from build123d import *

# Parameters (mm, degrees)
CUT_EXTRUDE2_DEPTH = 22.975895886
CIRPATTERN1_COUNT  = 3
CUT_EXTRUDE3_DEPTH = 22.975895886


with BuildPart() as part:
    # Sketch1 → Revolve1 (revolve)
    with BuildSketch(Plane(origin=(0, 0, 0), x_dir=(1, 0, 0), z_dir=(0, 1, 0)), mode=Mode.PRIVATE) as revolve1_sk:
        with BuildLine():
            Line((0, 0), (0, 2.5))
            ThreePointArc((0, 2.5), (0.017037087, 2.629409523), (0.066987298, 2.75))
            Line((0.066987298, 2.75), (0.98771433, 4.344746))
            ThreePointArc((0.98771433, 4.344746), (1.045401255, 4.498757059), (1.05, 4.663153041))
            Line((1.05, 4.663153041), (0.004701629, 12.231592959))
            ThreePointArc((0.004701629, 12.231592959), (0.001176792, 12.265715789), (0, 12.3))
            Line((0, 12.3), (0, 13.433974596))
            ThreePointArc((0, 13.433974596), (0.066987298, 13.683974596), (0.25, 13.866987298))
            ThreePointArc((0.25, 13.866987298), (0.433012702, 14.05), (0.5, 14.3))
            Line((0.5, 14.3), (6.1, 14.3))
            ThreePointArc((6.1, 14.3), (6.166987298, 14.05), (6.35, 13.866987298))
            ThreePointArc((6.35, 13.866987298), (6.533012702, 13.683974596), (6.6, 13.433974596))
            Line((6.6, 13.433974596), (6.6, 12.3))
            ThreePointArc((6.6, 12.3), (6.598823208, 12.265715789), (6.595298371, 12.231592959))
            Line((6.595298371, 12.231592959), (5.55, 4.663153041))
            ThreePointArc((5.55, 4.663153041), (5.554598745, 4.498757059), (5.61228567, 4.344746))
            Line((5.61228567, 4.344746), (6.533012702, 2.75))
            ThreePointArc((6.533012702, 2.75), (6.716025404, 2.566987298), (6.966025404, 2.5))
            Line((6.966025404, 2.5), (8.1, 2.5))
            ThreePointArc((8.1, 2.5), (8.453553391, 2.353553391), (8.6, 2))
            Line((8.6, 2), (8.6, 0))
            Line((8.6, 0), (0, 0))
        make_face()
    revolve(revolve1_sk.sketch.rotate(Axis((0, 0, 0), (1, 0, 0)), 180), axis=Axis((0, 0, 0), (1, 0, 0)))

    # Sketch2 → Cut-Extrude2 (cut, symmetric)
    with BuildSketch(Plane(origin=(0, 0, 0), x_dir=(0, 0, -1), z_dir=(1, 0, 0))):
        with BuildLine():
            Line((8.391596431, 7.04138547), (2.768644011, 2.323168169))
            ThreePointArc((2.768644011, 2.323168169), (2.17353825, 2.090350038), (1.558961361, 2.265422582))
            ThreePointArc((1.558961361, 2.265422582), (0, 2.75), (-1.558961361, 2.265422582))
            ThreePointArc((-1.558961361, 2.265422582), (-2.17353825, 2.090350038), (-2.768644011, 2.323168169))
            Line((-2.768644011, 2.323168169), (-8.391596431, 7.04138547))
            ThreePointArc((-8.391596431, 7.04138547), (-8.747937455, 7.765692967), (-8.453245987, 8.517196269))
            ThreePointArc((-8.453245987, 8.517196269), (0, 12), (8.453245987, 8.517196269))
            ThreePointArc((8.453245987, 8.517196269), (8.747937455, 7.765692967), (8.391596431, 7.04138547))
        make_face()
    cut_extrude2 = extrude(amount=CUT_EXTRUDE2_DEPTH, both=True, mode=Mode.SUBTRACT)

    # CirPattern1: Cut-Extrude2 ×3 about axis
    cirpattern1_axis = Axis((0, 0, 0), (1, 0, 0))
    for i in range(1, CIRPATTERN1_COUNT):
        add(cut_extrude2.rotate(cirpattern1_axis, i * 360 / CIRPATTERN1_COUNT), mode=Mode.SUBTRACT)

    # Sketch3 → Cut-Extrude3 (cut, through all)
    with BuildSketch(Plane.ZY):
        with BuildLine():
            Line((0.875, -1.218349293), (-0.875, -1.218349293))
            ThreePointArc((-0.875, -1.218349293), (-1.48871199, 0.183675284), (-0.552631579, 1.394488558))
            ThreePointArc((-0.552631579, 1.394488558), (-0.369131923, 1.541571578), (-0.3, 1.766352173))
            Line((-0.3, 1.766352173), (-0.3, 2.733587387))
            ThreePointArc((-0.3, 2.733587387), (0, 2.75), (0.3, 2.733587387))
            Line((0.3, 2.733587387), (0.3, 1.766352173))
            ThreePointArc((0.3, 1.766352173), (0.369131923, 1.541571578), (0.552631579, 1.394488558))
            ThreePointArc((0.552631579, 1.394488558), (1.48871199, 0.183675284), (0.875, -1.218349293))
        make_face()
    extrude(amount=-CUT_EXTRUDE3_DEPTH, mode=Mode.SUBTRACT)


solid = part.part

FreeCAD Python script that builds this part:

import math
import FreeCAD as App
import Part
import Sketcher
Q = App.Units.Quantity

doc = App.newDocument("Part")
body = doc.addObject("PartDesign::Body", "Body")

sketch1 = body.newObject("Sketcher::SketchObject", "Sketch")
sketch1.AttachmentSupport = (doc.getObject("XZ_Plane"), [""])
sketch1.MapMode = "FlatFace"
sketch1.addGeometry([
    Part.LineSegment(App.Vector(0, -2.5, 0), App.Vector(0, 0, 0)),
    Part.LineSegment(App.Vector(0, 0, 0), App.Vector(8.6, 0, 0)),
    Part.LineSegment(App.Vector(8.6, 0, 0), App.Vector(8.6, -2, 0)),
    Part.ArcOfCircle(Part.Circle(App.Vector(8.1, -2, 0), App.Vector(0, 0, 1), 0.5), math.radians(-90), math.radians(0)),
    Part.LineSegment(App.Vector(8.1, -2.5, 0), App.Vector(6.966025, -2.5, 0)),
    Part.ArcOfCircle(Part.Circle(App.Vector(6.966025, -3, 0), App.Vector(0, 0, 1), 0.5), math.radians(90), math.radians(150)),
    Part.LineSegment(App.Vector(6.533013, -2.75, 0), App.Vector(5.612286, -4.344746, 0)),
    Part.ArcOfCircle(Part.Circle(App.Vector(6.045298, -4.594746, 0), App.Vector(0, 0, 1), 0.5), math.radians(150), math.radians(187.863533)),
    Part.LineSegment(App.Vector(5.55, -4.663153, 0), App.Vector(6.595298, -12.231593, 0)),
    Part.ArcOfCircle(Part.Circle(App.Vector(6.1, -12.3, 0), App.Vector(0, 0, 1), 0.5), math.radians(0), math.radians(7.863534)),
    Part.LineSegment(App.Vector(6.6, -12.3, 0), App.Vector(6.6, -13.433975, 0)),
    Part.ArcOfCircle(Part.Circle(App.Vector(6.1, -13.433975, 0), App.Vector(0, 0, 1), 0.5), math.radians(-60), math.radians(0)),
    Part.ArcOfCircle(Part.Circle(App.Vector(6.6, -14.3, 0), App.Vector(0, 0, 1), 0.5), math.radians(120), math.radians(180)),
    Part.LineSegment(App.Vector(6.1, -14.3, 0), App.Vector(0.5, -14.3, 0)),
    Part.ArcOfCircle(Part.Circle(App.Vector(0, -14.3, 0), App.Vector(0, 0, 1), 0.5), math.radians(0), math.radians(60)),
    Part.ArcOfCircle(Part.Circle(App.Vector(0.5, -13.433975, 0), App.Vector(0, 0, 1), 0.5), math.radians(180), math.radians(240)),
    Part.LineSegment(App.Vector(0, -13.433975, 0), App.Vector(0, -12.3, 0)),
    Part.ArcOfCircle(Part.Circle(App.Vector(0.5, -12.3, 0), App.Vector(0, 0, 1), 0.5), math.radians(172.136466), math.radians(180)),
    Part.LineSegment(App.Vector(0.004702, -12.231593, 0), App.Vector(1.05, -4.663153, 0)),
    Part.ArcOfCircle(Part.Circle(App.Vector(0.554702, -4.594746, 0), App.Vector(0, 0, 1), 0.5), math.radians(-7.863533), math.radians(30)),
    Part.LineSegment(App.Vector(0.987714, -4.344746, 0), App.Vector(0.066987, -2.75, 0)),
    Part.ArcOfCircle(Part.Circle(App.Vector(0.5, -2.5, 0), App.Vector(0, 0, 1), 0.5), math.radians(180), math.radians(210)),
], False)
sketch1.addConstraint([
    Sketcher.Constraint("Coincident", 0, 2, 1, 1),
    Sketcher.Constraint("Coincident", 1, 2, 2, 1),
    Sketcher.Constraint("Tangent", 2, 2, 3, 2),
    Sketcher.Constraint("Tangent", 3, 1, 4, 1),
    Sketcher.Constraint("Tangent", 4, 2, 5, 1),
    Sketcher.Constraint("Tangent", 5, 2, 6, 1),
    Sketcher.Constraint("Tangent", 6, 2, 7, 1),
    Sketcher.Constraint("Tangent", 7, 2, 8, 1),
    Sketcher.Constraint("Tangent", 8, 2, 9, 2),
    Sketcher.Constraint("Tangent", 9, 1, 10, 1),
    Sketcher.Constraint("Tangent", 10, 2, 11, 2),
    Sketcher.Constraint("Tangent", 11, 1, 12, 1),
    Sketcher.Constraint("Coincident", 12, 2, 13, 1),
    Sketcher.Constraint("Coincident", 13, 2, 14, 1),
    Sketcher.Constraint("Tangent", 14, 2, 15, 2),
    Sketcher.Constraint("Tangent", 15, 1, 16, 1),
    Sketcher.Constraint("Tangent", 16, 2, 17, 2),
    Sketcher.Constraint("Tangent", 17, 1, 18, 1),
    Sketcher.Constraint("Tangent", 18, 2, 19, 1),
    Sketcher.Constraint("Tangent", 19, 2, 20, 1),
    Sketcher.Constraint("Tangent", 20, 2, 21, 2),
    Sketcher.Constraint("Tangent", 21, 1, 0, 1),
    Sketcher.Constraint("Vertical", 0),
    Sketcher.Constraint("Horizontal", 1),
    Sketcher.Constraint("Vertical", 2),
    Sketcher.Constraint("Horizontal", 4),
    Sketcher.Constraint("Vertical", 10),
    Sketcher.Constraint("Horizontal", 13),
    Sketcher.Constraint("Vertical", 16),
    Sketcher.Constraint("Coincident", 0, 2, -1, 1),
    Sketcher.Constraint("Equal", 3, 5),
    Sketcher.Constraint("Equal", 5, 7),
    Sketcher.Constraint("Equal", 7, 9),
    Sketcher.Constraint("Equal", 9, 11),
    Sketcher.Constraint("Equal", 11, 12),
    Sketcher.Constraint("Equal", 12, 14),
    Sketcher.Constraint("Equal", 14, 15),
    Sketcher.Constraint("Equal", 15, 17),
    Sketcher.Constraint("Equal", 17, 19),
    Sketcher.Constraint("Equal", 19, 21),
    Sketcher.Constraint("PointOnObject", 14, 3, -2),
    Sketcher.Constraint("PointOnObject", 15, 1, -2),
    Sketcher.Constraint("Horizontal", 12, 3, 14, 3),
    Sketcher.Constraint("Horizontal", 11, 3, 15, 3),
    Sketcher.Constraint("Horizontal", 9, 3, 17, 3),
    Sketcher.Constraint("Horizontal", 7, 3, 19, 3),
    Sketcher.Constraint("Horizontal", 21, 3, 3, 1),
    Sketcher.Constraint("Horizontal", 14, 3, 12, 2),
    Sketcher.Constraint("Horizontal", 8, 2, 17, 1),
    Sketcher.Constraint("Horizontal", 6, 2, 19, 2),
    Sketcher.Constraint("Horizontal", 5, 2, 20, 2),
    Sketcher.Constraint("Equal", 4, 10),
    Sketcher.Constraint("Radius", 3, 0.5),
    Sketcher.Constraint("DistanceY", 2, 2, 2, 1, 2.0),
    Sketcher.Constraint("DistanceX", 1, 1, 1, 2, 8.6),
    Sketcher.Constraint("DistanceX", 13, 2, 13, 1, 5.6),
    Sketcher.Constraint("DistanceY", 9, 3, -1, 1, 12.3),
    Sketcher.Constraint("DistanceX", 18, 2, 7, 2, 4.5),
])
revolution = body.newObject("PartDesign::Revolution", "Revolution")
revolution.Profile = sketch1
revolution.ReferenceAxis = (sketch1, ["H_Axis"])
revolution.Angle = 360

sketch2 = body.newObject("Sketcher::SketchObject", "Sketch001")
sketch2.AttachmentSupport = (doc.getObject("YZ_Plane"), [""])
sketch2.MapMode = "FlatFace"
sketch2.addGeometry([
    Part.LineSegment(App.Vector(2.323168, -2.768644, 0), App.Vector(7.041385, -8.391596, 0)),
    Part.ArcOfCircle(Part.Circle(App.Vector(7.80743, -7.748809, 0), App.Vector(0, 0, 1), 1), math.radians(-140), math.radians(-44.784091)),
    Part.ArcOfCircle(Part.Circle(App.Vector(0, 0, 0), App.Vector(0, 0, 1), 12), math.radians(-44.784091), math.radians(44.784091)),
    Part.ArcOfCircle(Part.Circle(App.Vector(7.80743, 7.748809, 0), App.Vector(0, 0, 1), 1), math.radians(44.784091), math.radians(140)),
    Part.LineSegment(App.Vector(7.041385, 8.391596, 0), App.Vector(2.323168, 2.768644, 0)),
    Part.ArcOfCircle(Part.Circle(App.Vector(3.089213, 2.125856, 0), App.Vector(0, 0, 1), 1), math.radians(140), math.radians(214.53399)),
    Part.ArcOfCircle(Part.Circle(App.Vector(0, 0, 0), App.Vector(0, 0, 1), 2.75), math.radians(-34.53399), math.radians(34.53399)),
    Part.ArcOfCircle(Part.Circle(App.Vector(3.089213, -2.125856, 0), App.Vector(0, 0, 1), 1), math.radians(145.46601), math.radians(220)),
], False)
sketch2.addConstraint([
    Sketcher.Constraint("Tangent", 0, 2, 1, 1),
    Sketcher.Constraint("Tangent", 1, 2, 2, 1),
    Sketcher.Constraint("Tangent", 2, 2, 3, 1),
    Sketcher.Constraint("Tangent", 3, 2, 4, 1),
    Sketcher.Constraint("Tangent", 4, 2, 5, 1),
    Sketcher.Constraint("Tangent", 5, 2, 6, 2),
    Sketcher.Constraint("Tangent", 6, 1, 7, 1),
    Sketcher.Constraint("Tangent", 7, 2, 0, 1),
    Sketcher.Constraint("Coincident", 2, 3, -1, 1),
    Sketcher.Constraint("Coincident", 6, 3, -1, 1),
    Sketcher.Constraint("Equal", 1, 3),
    Sketcher.Constraint("Equal", 3, 5),
    Sketcher.Constraint("Equal", 5, 7),
    Sketcher.Constraint("Symmetric", 0, 2, 3, 2, -1),
    Sketcher.Constraint("Radius", 1, 1.0),
    Sketcher.Constraint("Radius", 2, 12.0),
    Sketcher.Constraint("Angle", 0, Q("-50 deg")),
    Sketcher.Constraint("Radius", 6, 2.75),
    Sketcher.Constraint("DistanceY", 7, 3, 4, 2, 4.8945),
])
pocket1 = body.newObject("PartDesign::Pocket", "Pocket")
pocket1.Profile = sketch2
pocket1.Length = 45.951792
pocket1.Midplane = True
doc.recompute()

polarpattern = body.newObject("PartDesign::PolarPattern", "PolarPattern")
polarpattern.Originals = [pocket1]
polarpattern.Axis = (doc.getObject("X_Axis"), [""])
polarpattern.Angle = 360
polarpattern.Occurrences = 3
body.Tip = polarpattern

sketch3 = body.newObject("Sketcher::SketchObject", "Sketch002")
sketch3.AttachmentSupport = (doc.getObject("YZ_Plane"), [""])
sketch3.MapMode = "FlatFace"
sketch3.addGeometry([
    Part.LineSegment(App.Vector(-1.218349, -0.875, 0), App.Vector(-1.218349, 0.875, 0)),
    Part.ArcOfCircle(Part.Circle(App.Vector(0, 0, 0), App.Vector(0, 0, 1), 1.5), math.radians(21.618272), math.radians(144.314665)),
    Part.ArcOfCircle(Part.Circle(App.Vector(1.766352, 0.7, 0), App.Vector(0, 0, 1), 0.4), math.radians(-158.381728), math.radians(-90)),
    Part.LineSegment(App.Vector(1.766352, 0.3, 0), App.Vector(2.733587, 0.3, 0)),
    Part.ArcOfCircle(Part.Circle(App.Vector(0, 0, 0), App.Vector(0, 0, 1), 2.75), math.radians(-6.262913), math.radians(6.262913)),
    Part.LineSegment(App.Vector(2.733587, -0.3, 0), App.Vector(1.766352, -0.3, 0)),
    Part.ArcOfCircle(Part.Circle(App.Vector(1.766352, -0.7, 0), App.Vector(0, 0, 1), 0.4), math.radians(90), math.radians(158.381728)),
    Part.ArcOfCircle(Part.Circle(App.Vector(0, 0, 0), App.Vector(0, 0, 1), 1.5), math.radians(-144.314665), math.radians(-21.618272)),
], False)
sketch3.addConstraint([
    Sketcher.Constraint("Coincident", 0, 2, 1, 2),
    Sketcher.Constraint("Tangent", 1, 1, 2, 1),
    Sketcher.Constraint("Tangent", 2, 2, 3, 1),
    Sketcher.Constraint("Coincident", 3, 2, 4, 2),
    Sketcher.Constraint("Coincident", 4, 1, 5, 1),
    Sketcher.Constraint("Tangent", 5, 2, 6, 1),
    Sketcher.Constraint("Tangent", 6, 2, 7, 2),
    Sketcher.Constraint("Coincident", 7, 1, 0, 1),
    Sketcher.Constraint("Vertical", 0),
    Sketcher.Constraint("Horizontal", 3),
    Sketcher.Constraint("Horizontal", 5),
    Sketcher.Constraint("Coincident", 1, 3, -1, 1),
    Sketcher.Constraint("Coincident", 4, 3, -1, 1),
    Sketcher.Constraint("Coincident", 7, 3, -1, 1),
    Sketcher.Constraint("Equal", 2, 6),
    Sketcher.Constraint("Equal", 1, 7),
    Sketcher.Constraint("Vertical", 2, 3, 6, 3),
    Sketcher.Constraint("Radius", 1, 1.5),
    Sketcher.Constraint("Radius", 2, 0.4),
    Sketcher.Constraint("Radius", 4, 2.75),
    Sketcher.Constraint("DistanceY", 6, 3, 2, 2, 1.0),
    Sketcher.Constraint("DistanceY", 0, 1, 0, 2, 1.75),
])
pocket2 = body.newObject("PartDesign::Pocket", "Pocket001")
pocket2.Profile = sketch3
pocket2.Type = "ThroughAll"
pocket2.Reversed = True

doc.recompute()
